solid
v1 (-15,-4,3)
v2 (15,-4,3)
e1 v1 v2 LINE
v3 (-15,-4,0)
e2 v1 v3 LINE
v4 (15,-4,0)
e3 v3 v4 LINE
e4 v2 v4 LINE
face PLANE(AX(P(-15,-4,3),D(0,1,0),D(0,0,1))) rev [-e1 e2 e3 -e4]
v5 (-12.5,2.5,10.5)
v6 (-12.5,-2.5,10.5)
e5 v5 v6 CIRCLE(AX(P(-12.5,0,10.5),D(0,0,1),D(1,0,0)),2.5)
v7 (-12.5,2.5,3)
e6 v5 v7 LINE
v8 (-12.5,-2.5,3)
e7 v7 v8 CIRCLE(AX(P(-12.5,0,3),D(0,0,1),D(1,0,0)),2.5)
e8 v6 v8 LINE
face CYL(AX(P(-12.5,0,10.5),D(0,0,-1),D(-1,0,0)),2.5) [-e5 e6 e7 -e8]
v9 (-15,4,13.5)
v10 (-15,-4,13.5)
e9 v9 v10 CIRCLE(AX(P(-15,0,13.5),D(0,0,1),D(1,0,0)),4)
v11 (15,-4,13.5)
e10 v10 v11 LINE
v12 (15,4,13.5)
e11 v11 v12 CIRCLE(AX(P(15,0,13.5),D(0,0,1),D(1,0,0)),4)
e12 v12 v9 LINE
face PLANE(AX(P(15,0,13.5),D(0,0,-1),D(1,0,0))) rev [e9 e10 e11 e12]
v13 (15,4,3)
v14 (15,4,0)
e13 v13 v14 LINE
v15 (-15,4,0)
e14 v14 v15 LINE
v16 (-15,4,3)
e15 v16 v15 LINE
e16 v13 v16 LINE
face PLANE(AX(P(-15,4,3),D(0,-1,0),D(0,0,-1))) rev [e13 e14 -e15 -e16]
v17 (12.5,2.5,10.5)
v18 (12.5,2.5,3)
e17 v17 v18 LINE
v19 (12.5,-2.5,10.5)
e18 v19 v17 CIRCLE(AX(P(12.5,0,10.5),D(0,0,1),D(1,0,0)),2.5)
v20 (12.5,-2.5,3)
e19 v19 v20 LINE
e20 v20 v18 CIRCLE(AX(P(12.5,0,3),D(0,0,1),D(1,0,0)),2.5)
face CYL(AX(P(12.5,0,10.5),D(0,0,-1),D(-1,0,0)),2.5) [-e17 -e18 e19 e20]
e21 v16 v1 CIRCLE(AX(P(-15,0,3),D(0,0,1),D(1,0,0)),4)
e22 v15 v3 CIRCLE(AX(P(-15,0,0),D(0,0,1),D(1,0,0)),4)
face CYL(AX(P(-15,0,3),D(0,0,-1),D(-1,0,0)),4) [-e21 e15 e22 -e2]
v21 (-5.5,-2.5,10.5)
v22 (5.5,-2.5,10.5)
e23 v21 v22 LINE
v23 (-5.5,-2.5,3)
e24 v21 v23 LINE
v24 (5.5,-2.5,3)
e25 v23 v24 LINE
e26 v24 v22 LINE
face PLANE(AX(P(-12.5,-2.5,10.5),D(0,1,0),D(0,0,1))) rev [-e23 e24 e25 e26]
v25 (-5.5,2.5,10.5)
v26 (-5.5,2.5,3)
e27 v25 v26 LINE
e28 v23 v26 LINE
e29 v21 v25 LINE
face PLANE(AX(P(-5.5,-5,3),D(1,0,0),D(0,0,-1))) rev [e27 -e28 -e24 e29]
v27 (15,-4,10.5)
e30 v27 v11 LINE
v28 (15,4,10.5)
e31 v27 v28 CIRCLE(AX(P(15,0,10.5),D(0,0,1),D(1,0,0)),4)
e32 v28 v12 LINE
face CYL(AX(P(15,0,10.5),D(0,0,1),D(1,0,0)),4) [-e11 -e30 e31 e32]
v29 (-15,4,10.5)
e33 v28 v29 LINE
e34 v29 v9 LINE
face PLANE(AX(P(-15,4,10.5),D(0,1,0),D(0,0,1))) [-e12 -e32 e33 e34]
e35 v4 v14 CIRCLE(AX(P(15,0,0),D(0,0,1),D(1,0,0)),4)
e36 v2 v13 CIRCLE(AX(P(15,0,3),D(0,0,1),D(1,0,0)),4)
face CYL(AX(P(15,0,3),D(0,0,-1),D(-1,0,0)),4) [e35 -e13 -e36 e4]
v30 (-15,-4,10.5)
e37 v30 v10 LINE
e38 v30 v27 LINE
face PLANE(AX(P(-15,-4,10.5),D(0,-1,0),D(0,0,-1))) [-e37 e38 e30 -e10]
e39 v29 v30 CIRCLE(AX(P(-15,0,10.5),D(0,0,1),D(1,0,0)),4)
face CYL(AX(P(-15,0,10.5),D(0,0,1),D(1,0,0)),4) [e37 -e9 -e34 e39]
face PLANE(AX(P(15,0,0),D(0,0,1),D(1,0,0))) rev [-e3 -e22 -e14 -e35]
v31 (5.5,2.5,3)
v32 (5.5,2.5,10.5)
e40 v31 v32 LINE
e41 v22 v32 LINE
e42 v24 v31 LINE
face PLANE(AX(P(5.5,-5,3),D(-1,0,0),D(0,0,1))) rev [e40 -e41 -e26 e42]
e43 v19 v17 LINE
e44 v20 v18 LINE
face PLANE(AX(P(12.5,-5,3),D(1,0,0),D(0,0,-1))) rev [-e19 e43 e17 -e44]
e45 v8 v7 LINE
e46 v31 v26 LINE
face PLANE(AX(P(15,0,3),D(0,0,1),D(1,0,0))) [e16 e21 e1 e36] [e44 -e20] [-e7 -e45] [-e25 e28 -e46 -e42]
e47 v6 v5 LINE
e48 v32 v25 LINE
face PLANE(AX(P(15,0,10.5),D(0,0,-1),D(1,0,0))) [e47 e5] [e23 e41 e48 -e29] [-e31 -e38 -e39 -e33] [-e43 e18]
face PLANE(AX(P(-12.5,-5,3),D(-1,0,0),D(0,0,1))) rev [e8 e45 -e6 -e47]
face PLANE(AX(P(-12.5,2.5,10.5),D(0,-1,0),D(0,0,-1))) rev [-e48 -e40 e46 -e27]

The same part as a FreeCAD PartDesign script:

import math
import FreeCAD as App
import Part
import Sketcher
from FreeCAD import Vector
Q = App.Units.Quantity

doc = App.newDocument("Part")
body = doc.addObject("PartDesign::Body", "Body")

# Sketch on XY plane
sketch1 = body.newObject("Sketcher::SketchObject", "Sketch")
sketch1.AttachmentSupport = (doc.getObject("XY_Plane"), [""])
sketch1.MapMode = "FlatFace"
sketch1.addGeometry([
    Part.LineSegment(Vector(15, 4, 0), Vector(-15, 4, 0)),
    Part.ArcOfCircle(Part.Circle(Vector(-15, 0, 0), Vector(0, 0, 1), 4), math.radians(90), math.radians(270)),
    Part.LineSegment(Vector(-15, -4, 0), Vector(15, -4, 0)),
    Part.ArcOfCircle(Part.Circle(Vector(15, 0, 0), Vector(0, 0, 1), 4), math.radians(-90), math.radians(90)),
], False)
sketch1.addConstraint([
    Sketcher.Constraint("Tangent", 0, 2, 1, 1),
    Sketcher.Constraint("Tangent", 1, 2, 2, 1),
    Sketcher.Constraint("Tangent", 2, 2, 3, 1),
    Sketcher.Constraint("Tangent", 3, 2, 0, 1),
    Sketcher.Constraint("Horizontal", 0),
    Sketcher.Constraint("Horizontal", 2),
    Sketcher.Constraint("Symmetric", 1, 3, 3, 3, -1, 1),
    Sketcher.Constraint("Radius", 1, Q("4 mm")),
    Sketcher.Constraint("DistanceX", 0, 2, 0, 1, Q("30 mm")),
])
pad1 = body.newObject("PartDesign::Pad", "Pad")
pad1.Profile = sketch1
pad1.Length = 3

# Sketch on XY plane
sketch2 = body.newObject("Sketcher::SketchObject", "Sketch001")
sketch2.AttachmentSupport = (doc.getObject("XY_Plane"), [""])
sketch2.MapMode = "FlatFace"
sketch2.AttachmentOffset = App.Placement(Vector(0, 0, 3), App.Rotation())
sketch2.addGeometry([
    Part.LineSegment(Vector(12.5, 2.5, 0), Vector(-12.5, 2.5, 0)),
    Part.ArcOfCircle(Part.Circle(Vector(-12.5, 0, 0), Vector(0, 0, 1), 2.5), math.radians(90), math.radians(270)),
    Part.LineSegment(Vector(-12.5, -2.5, 0), Vector(12.5, -2.5, 0)),
    Part.ArcOfCircle(Part.Circle(Vector(12.5, 0, 0), Vector(0, 0, 1), 2.5), math.radians(-90), math.radians(90)),
], False)
sketch2.addConstraint([
    Sketcher.Constraint("Tangent", 0, 2, 1, 1),
    Sketcher.Constraint("Tangent", 1, 2, 2, 1),
    Sketcher.Constraint("Tangent", 2, 2, 3, 1),
    Sketcher.Constraint("Tangent", 3, 2, 0, 1),
    Sketcher.Constraint("Horizontal", 0),
    Sketcher.Constraint("Horizontal", 2),
    Sketcher.Constraint("Symmetric", 1, 3, 3, 3, -1, 1),
    Sketcher.Constraint("Radius", 1, Q("2.5 mm")),
    Sketcher.Constraint("DistanceX", 0, 2, 0, 1, Q("25 mm")),
])
pad2 = body.newObject("PartDesign::Pad", "Pad001")
pad2.Profile = sketch2
pad2.Length = 7.5
doc.recompute()

datumplane = body.newObject("PartDesign::Plane", "DatumPlane")
datumplane.AttachmentSupport = (doc.getObject("XY_Plane"), [""])
datumplane.MapMode = "FlatFace"
datumplane.AttachmentOffset = App.Placement(Vector(0, 0, 6.75), App.Rotation())
mirrored = body.newObject("PartDesign::Mirrored", "Mirrored")
mirrored.Originals = [pad1]
mirrored.MirrorPlane = (datumplane, [""])
body.Tip = mirrored

# Sketch on XZ plane
sketch3 = body.newObject("Sketcher::SketchObject", "Sketch002")
sketch3.AttachmentSupport = (doc.getObject("XZ_Plane"), [""])
sketch3.MapMode = "FlatFace"
sketch3.AttachmentOffset = App.Placement(Vector(0, 0, -2.5), App.Rotation())
sketch3.addGeometry([
    Part.LineSegment(Vector(-12.5, 3, 0), Vector(-12.5, 10.5, 0)),  # 0
    Part.LineSegment(Vector(-12.5, 10.5, 0), Vector(-5.5, 10.5, 0)),  # 1
    Part.LineSegment(Vector(-5.5, 10.5, 0), Vector(-5.5, 3, 0)),  # 2
    Part.LineSegment(Vector(-5.5, 3, 0), Vector(-12.5, 3, 0)),  # 3
    Part.LineSegment(Vector(5.5, 3, 0), Vector(5.5, 10.5, 0)),  # 4
    Part.LineSegment(Vector(5.5, 10.5, 0), Vector(12.5, 10.5, 0)),  # 5
    Part.LineSegment(Vector(12.5, 10.5, 0), Vector(12.5, 3, 0)),  # 6
    Part.LineSegment(Vector(12.5, 3, 0), Vector(5.5, 3, 0)),  # 7
], False)
sketch3.addConstraint([
    Sketcher.Constraint("Coincident", 0, 2, 1, 1),
    Sketcher.Constraint("Coincident", 1, 2, 2, 1),
    Sketcher.Constraint("Coincident", 2, 2, 3, 1),
    Sketcher.Constraint("Coincident", 3, 2, 0, 1),
    Sketcher.Constraint("Coincident", 4, 2, 5, 1),
    Sketcher.Constraint("Coincident", 5, 2, 6, 1),
    Sketcher.Constraint("Coincident", 6, 2, 7, 1),
    Sketcher.Constraint("Coincident", 7, 2, 4, 1),
    Sketcher.Constraint("Vertical", 0),
    Sketcher.Constraint("Horizontal", 1),
    Sketcher.Constraint("Vertical", 2),
    Sketcher.Constraint("Horizontal", 3),
    Sketcher.Constraint("Vertical", 4),
    Sketcher.Constraint("Horizontal", 5),
    Sketcher.Constraint("Vertical", 6),
    Sketcher.Constraint("Horizontal", 7),
    Sketcher.Constraint("Symmetric", 1, 2, 4, 2, -2),
    Sketcher.Constraint("Symmetric", 3, 2, 6, 2, -2),
    Sketcher.Constraint("DistanceX", 1, 1, 1, 2, Q("7 mm")),
    Sketcher.Constraint("DistanceY", 0, 1, 0, 2, Q("7.5 mm")),
    Sketcher.Constraint("DistanceY", -1, 1, 2, 2, Q("3 mm")),
    Sketcher.Constraint("DistanceX", 1, 2, 4, 2, Q("11 mm")),
])
pocket1 = body.newObject("PartDesign::Pocket", "Pocket")
pocket1.Profile = sketch3
pocket1.Length = 7.5
pocket1.Reversed = True

doc.recompute()
